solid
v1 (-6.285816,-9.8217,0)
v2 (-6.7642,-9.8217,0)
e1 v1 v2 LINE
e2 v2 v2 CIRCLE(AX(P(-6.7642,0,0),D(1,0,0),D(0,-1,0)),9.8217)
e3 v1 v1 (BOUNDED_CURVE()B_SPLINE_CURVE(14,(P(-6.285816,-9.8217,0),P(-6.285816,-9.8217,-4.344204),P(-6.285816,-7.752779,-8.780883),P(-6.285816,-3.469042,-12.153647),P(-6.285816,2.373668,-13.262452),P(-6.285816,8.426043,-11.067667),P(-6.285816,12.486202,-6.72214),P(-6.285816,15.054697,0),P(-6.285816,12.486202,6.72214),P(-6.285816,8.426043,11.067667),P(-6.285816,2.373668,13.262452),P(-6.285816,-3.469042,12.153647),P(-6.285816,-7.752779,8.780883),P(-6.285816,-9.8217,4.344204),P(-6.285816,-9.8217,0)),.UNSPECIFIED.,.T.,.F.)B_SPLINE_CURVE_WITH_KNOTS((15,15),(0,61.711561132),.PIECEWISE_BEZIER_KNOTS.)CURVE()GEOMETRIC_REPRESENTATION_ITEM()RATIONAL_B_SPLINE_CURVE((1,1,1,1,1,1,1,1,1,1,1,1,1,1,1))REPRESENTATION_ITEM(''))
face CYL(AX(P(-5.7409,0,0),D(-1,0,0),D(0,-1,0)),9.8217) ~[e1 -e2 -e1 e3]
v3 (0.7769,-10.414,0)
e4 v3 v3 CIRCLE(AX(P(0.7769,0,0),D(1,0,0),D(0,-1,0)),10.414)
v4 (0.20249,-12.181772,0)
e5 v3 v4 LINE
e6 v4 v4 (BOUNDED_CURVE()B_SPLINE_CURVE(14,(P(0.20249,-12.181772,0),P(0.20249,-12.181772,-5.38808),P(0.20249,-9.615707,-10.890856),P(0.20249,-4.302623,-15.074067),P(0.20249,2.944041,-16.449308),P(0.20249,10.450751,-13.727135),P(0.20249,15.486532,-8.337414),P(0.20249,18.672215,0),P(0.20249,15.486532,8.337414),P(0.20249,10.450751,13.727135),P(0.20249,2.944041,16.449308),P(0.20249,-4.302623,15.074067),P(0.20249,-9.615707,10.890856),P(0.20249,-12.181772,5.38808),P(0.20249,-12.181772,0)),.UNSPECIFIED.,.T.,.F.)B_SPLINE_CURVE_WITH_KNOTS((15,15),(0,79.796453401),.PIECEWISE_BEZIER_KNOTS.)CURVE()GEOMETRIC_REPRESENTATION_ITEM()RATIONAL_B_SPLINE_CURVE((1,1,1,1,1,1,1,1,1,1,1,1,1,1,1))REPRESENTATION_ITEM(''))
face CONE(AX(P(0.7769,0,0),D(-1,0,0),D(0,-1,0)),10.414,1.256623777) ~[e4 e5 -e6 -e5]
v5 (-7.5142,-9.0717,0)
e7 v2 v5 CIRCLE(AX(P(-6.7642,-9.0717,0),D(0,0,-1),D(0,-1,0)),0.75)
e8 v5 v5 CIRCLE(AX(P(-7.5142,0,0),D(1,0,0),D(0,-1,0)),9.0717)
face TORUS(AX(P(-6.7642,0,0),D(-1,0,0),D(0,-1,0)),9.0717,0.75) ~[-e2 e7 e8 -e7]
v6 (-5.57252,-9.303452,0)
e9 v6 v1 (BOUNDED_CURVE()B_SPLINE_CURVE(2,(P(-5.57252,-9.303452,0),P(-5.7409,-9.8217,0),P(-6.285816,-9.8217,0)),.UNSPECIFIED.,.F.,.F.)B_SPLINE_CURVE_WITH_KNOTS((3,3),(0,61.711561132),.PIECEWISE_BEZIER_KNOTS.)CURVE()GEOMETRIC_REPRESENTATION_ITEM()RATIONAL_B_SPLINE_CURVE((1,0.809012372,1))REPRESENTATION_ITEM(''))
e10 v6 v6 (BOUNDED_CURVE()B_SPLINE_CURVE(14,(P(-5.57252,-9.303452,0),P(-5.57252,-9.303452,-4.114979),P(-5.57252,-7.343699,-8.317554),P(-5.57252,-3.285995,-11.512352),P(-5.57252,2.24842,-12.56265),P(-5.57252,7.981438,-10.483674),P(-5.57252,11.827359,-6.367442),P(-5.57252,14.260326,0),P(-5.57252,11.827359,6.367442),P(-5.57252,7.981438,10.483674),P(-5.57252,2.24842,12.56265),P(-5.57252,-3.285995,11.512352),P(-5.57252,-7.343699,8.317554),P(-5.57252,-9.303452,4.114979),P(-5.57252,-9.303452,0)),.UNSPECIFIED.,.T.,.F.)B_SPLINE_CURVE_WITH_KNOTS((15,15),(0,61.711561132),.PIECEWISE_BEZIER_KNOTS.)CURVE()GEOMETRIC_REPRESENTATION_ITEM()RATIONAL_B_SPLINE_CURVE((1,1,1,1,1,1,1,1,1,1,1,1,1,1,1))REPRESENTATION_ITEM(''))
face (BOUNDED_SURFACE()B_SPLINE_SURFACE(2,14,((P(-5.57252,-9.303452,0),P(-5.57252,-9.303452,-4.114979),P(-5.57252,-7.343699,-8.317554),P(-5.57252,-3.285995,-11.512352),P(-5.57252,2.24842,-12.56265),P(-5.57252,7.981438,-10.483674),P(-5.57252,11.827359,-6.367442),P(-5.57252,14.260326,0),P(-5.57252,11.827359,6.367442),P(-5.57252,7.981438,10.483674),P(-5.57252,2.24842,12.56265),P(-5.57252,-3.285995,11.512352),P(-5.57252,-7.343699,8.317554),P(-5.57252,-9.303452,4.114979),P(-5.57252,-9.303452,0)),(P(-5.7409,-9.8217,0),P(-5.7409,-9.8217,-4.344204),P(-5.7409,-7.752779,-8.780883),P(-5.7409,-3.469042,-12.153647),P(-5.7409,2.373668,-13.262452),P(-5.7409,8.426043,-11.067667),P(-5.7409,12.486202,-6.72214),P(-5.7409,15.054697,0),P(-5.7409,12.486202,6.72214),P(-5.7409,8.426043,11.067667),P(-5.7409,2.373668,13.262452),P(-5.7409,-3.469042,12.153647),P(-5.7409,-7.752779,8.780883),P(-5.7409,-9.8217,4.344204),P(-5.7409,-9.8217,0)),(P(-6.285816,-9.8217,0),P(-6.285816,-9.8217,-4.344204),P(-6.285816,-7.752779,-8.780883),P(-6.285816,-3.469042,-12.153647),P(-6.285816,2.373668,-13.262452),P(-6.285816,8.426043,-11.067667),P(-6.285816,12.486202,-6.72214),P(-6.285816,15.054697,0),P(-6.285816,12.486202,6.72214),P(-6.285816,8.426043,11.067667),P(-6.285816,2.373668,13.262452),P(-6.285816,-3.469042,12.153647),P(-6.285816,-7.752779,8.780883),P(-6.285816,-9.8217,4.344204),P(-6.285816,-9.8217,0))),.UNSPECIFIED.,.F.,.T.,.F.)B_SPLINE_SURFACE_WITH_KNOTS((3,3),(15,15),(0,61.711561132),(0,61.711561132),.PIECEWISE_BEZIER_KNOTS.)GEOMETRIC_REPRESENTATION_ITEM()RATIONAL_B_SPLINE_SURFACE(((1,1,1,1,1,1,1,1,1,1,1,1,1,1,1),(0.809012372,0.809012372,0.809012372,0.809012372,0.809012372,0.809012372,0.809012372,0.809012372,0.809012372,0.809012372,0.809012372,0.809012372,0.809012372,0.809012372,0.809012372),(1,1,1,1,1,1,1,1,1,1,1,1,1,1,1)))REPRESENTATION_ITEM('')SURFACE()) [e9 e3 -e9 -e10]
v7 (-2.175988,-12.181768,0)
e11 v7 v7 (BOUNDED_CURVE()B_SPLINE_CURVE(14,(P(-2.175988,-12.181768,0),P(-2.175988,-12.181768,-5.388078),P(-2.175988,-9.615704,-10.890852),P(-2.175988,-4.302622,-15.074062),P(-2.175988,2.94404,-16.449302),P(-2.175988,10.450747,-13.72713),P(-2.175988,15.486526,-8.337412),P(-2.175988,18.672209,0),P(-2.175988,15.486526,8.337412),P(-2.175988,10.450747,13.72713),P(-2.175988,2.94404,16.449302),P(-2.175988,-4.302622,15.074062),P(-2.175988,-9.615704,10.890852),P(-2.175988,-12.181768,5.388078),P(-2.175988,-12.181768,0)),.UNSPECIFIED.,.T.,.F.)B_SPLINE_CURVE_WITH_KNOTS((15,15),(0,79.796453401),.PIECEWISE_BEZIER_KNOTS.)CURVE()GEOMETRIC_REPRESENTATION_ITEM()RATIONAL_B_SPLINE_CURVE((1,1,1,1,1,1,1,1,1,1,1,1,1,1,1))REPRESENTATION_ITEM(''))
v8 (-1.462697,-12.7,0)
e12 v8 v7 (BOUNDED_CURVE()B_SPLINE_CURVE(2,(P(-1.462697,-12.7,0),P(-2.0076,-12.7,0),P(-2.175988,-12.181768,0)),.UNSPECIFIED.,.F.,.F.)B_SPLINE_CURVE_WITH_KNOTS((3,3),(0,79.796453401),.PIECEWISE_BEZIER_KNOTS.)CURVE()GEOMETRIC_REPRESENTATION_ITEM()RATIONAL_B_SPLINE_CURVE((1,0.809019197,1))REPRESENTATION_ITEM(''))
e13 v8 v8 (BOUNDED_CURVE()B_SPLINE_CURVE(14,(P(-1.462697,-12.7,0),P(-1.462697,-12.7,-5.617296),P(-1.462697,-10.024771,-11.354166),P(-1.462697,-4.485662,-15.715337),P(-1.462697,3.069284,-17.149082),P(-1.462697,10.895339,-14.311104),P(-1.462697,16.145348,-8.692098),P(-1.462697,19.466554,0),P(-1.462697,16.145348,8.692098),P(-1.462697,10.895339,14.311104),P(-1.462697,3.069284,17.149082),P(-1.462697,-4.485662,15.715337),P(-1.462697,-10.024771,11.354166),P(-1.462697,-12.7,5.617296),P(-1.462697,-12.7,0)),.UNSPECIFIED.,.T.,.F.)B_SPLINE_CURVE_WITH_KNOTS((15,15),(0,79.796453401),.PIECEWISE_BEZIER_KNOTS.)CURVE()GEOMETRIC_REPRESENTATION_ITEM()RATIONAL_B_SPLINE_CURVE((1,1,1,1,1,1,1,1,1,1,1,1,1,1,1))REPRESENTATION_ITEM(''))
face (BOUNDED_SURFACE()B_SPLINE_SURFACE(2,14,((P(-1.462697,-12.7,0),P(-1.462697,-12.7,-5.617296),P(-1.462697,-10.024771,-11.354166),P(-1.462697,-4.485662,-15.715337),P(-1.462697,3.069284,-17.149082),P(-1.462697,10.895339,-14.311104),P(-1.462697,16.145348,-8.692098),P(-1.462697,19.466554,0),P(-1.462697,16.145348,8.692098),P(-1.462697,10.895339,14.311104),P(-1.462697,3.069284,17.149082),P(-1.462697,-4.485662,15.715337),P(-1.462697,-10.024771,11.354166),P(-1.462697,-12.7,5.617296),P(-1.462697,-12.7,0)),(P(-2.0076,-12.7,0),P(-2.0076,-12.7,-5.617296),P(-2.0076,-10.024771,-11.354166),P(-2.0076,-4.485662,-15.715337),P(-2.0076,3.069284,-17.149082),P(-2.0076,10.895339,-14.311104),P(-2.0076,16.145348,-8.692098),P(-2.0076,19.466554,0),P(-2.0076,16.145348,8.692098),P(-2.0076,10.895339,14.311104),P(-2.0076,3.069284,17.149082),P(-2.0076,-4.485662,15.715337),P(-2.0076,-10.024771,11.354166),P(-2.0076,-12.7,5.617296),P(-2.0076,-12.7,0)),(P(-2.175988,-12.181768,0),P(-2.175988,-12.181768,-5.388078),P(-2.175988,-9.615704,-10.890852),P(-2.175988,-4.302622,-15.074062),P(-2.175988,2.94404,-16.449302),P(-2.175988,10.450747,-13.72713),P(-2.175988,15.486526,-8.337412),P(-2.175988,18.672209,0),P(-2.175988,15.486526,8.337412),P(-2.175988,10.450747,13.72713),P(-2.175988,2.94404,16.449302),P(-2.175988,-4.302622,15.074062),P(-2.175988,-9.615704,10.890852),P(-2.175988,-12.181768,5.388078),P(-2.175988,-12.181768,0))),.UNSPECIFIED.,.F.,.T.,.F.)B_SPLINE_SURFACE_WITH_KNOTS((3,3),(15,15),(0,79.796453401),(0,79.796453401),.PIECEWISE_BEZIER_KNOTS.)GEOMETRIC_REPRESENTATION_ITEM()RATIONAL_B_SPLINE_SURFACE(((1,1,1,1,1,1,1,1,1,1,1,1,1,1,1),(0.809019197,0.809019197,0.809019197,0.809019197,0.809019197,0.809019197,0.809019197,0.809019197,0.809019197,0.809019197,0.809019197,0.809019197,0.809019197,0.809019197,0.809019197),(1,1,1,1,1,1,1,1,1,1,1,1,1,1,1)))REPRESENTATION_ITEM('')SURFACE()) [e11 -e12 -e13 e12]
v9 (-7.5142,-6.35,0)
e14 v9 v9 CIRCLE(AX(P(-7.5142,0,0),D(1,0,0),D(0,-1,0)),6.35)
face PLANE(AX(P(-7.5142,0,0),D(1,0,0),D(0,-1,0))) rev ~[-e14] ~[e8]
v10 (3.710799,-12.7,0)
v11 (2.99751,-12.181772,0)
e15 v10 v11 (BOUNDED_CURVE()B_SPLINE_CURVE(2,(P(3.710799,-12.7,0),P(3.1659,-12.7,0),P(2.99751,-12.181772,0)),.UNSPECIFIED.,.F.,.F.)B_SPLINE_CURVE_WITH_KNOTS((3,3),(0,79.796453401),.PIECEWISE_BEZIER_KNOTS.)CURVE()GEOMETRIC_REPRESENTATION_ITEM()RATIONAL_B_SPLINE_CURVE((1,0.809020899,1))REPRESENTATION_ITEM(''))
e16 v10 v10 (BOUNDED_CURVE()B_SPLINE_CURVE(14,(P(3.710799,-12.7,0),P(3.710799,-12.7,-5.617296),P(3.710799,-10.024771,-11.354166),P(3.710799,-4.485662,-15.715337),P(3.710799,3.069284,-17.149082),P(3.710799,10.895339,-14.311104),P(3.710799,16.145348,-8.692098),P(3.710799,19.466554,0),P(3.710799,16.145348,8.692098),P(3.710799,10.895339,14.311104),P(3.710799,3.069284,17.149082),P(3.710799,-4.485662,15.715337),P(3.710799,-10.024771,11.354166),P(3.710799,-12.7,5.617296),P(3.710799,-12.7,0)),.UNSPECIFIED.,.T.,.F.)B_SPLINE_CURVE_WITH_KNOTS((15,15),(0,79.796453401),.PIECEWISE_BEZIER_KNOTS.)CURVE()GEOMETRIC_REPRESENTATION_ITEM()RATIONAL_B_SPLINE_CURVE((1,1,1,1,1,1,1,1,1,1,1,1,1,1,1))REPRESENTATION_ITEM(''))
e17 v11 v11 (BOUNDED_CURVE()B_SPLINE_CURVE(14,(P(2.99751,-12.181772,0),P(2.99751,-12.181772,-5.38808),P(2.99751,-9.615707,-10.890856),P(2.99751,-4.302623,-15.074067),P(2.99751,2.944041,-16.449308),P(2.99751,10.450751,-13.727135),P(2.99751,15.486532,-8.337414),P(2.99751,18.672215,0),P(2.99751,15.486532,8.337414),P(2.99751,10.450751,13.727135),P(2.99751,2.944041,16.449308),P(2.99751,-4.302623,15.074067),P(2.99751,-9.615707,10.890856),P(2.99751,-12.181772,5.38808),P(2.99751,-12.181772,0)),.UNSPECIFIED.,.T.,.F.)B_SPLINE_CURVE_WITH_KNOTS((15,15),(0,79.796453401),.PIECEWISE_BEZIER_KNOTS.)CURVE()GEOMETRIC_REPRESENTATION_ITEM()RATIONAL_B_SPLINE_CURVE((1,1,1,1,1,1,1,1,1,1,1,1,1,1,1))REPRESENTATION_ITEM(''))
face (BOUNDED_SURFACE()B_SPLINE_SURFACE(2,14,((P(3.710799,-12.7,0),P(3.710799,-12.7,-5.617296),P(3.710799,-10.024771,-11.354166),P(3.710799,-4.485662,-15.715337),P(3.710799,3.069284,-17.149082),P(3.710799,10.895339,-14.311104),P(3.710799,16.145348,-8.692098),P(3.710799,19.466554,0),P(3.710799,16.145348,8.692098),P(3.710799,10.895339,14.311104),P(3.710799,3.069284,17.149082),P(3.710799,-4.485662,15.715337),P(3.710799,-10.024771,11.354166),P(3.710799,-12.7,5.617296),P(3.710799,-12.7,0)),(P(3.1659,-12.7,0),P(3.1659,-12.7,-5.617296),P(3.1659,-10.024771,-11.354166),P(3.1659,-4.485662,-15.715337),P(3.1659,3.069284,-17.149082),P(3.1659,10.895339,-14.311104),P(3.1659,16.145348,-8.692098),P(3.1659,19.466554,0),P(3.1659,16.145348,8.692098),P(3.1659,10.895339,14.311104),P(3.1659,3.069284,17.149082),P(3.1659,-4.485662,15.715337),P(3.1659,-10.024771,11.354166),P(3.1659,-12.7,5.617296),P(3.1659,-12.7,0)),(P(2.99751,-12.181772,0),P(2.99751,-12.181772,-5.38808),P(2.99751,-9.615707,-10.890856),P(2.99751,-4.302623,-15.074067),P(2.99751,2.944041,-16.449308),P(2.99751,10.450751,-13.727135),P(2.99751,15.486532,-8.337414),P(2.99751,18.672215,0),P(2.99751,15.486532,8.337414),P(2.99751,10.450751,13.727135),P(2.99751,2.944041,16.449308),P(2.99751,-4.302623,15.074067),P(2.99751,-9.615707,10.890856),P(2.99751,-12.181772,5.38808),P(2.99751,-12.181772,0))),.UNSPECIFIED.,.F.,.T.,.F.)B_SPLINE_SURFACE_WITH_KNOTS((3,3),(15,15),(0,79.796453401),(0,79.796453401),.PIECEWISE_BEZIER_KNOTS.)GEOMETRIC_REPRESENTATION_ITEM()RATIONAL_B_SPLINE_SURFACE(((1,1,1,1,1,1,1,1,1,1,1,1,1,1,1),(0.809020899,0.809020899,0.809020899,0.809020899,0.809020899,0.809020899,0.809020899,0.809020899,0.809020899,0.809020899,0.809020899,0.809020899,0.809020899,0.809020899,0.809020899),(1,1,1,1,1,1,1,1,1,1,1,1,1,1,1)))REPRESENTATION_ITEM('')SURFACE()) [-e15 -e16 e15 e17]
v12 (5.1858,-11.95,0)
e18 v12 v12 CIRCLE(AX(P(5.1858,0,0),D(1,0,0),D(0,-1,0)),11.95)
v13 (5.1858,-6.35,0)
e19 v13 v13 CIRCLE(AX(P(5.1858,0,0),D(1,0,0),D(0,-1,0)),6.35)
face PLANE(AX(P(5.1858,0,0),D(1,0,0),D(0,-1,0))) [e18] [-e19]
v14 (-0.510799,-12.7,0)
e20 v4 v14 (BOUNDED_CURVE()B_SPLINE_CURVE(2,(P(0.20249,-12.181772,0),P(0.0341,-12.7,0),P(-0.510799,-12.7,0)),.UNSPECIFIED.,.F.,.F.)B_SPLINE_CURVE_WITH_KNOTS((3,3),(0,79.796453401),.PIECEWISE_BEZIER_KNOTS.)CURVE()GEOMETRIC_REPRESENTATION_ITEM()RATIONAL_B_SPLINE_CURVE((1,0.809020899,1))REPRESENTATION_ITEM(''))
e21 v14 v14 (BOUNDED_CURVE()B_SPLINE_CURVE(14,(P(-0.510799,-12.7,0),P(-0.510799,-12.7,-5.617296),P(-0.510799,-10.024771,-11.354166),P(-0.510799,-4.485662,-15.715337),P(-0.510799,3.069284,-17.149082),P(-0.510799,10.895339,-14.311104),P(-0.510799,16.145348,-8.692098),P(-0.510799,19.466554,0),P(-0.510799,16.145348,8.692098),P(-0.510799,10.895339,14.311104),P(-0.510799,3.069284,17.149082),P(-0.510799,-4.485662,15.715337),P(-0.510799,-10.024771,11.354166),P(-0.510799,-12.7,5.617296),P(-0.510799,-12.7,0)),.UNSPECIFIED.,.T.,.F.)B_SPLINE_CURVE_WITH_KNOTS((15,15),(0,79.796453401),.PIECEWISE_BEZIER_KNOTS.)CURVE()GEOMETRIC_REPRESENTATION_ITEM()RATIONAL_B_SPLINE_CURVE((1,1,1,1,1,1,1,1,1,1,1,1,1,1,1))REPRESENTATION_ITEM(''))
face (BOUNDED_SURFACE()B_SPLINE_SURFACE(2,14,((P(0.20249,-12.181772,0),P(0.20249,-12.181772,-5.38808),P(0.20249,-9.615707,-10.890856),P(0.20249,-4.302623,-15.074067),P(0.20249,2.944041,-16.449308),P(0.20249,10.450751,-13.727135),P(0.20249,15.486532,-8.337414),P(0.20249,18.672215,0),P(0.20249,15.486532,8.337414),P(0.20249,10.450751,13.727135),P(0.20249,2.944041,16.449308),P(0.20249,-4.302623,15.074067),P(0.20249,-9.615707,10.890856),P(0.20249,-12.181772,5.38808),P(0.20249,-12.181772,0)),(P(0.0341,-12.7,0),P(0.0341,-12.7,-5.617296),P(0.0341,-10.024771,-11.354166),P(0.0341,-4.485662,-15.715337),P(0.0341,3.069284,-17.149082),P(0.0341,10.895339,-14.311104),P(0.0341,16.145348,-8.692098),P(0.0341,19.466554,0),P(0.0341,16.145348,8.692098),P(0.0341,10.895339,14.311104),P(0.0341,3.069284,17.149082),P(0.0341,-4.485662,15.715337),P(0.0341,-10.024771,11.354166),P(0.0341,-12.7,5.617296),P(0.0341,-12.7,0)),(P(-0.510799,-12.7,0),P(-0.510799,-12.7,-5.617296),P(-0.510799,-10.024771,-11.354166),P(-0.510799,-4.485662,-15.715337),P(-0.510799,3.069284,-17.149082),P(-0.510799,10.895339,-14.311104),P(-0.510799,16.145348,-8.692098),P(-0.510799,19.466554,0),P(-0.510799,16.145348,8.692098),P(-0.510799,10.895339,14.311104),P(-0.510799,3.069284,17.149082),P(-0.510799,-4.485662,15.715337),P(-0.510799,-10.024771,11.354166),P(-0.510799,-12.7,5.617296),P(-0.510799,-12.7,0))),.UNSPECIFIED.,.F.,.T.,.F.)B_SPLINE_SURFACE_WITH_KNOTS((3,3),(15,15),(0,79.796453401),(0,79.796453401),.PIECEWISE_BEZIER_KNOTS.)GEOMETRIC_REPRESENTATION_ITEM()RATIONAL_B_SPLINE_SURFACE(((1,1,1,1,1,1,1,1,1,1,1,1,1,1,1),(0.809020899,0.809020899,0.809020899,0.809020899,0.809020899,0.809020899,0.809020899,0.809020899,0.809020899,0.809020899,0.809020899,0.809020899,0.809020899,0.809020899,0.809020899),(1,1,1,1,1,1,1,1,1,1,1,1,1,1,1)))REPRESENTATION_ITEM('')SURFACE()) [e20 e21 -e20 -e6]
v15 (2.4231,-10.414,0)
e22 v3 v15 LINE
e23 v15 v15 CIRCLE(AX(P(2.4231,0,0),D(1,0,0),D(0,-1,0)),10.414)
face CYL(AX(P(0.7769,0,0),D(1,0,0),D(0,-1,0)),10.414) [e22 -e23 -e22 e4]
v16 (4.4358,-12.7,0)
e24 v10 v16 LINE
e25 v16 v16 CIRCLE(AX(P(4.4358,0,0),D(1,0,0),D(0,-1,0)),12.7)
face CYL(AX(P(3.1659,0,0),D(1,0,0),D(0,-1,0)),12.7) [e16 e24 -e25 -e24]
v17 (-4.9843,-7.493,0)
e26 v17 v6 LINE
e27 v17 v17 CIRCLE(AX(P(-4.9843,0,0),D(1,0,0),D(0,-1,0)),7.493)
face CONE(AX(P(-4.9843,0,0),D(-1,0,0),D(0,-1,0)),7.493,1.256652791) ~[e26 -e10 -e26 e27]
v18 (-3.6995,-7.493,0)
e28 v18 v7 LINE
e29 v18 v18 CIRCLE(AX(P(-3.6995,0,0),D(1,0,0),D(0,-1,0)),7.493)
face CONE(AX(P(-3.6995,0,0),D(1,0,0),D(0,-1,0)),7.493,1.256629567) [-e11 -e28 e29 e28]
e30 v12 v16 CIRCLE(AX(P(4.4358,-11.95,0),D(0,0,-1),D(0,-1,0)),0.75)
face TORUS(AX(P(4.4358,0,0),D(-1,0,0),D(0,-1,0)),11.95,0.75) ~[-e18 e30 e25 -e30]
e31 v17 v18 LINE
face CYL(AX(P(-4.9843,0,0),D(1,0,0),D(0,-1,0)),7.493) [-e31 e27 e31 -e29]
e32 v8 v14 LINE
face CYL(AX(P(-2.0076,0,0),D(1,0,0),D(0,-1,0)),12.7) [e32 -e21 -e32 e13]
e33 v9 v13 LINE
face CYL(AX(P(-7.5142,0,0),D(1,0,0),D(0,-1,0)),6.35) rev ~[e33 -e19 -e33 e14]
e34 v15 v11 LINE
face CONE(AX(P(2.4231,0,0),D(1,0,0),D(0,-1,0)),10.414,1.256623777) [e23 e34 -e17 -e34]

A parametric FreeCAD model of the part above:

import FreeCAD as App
import Part
import Sketcher
Q = App.Units.Quantity


def edges_at(feature, points):
    """Names of the edges that pass closest to the given points."""
    edges = feature.Shape.Edges
    near = lambda p: min(range(len(edges)), key=lambda i: edges[i].distToShape(Part.Vertex(*p))[0])
    return sorted({f"Edge{near(p) + 1}" for p in points})

doc = App.newDocument("Part")
params = doc.addObject("Spreadsheet::Sheet", "Params")
for row, (alias, value) in enumerate([
    ("sketch1_width", "0.5 in"),
    ("sketch1_height", "0.25 in"),
    ("revolution_angle", "360 deg"),
    ("fillet_radius", "0.75 mm"),
], start=1):
    params.set(f"A{row}", alias)
    params.set(f"B{row}", "=" + value)
    params.setAlias(f"B{row}", alias)

body = doc.addObject("PartDesign::Body", "Body")

# Sketch on XY plane
sketch1 = body.newObject("Sketcher::SketchObject", "Sketch")
sketch1.AttachmentSupport = (doc.getObject("XY_Plane"), [""])
sketch1.MapMode = "FlatFace"
sketch1.addGeometry([
    Part.LineSegment(App.Vector(-5.7409, -9.8217, 0), App.Vector(-4.9843, -7.493, 0)),  # 0
    Part.LineSegment(App.Vector(-4.9843, -7.493, 0), App.Vector(-3.6995, -7.493, 0)),  # 1
    Part.LineSegment(App.Vector(-3.6995, -7.493, 0), App.Vector(-2.0076, -12.7, 0)),  # 2
    Part.LineSegment(App.Vector(-2.0076, -12.7, 0), App.Vector(0.0341, -12.7, 0)),  # 3
    Part.LineSegment(App.Vector(0.0341, -12.7, 0), App.Vector(0.7769, -10.414, 0)),  # 4
    Part.LineSegment(App.Vector(0.7769, -10.414, 0), App.Vector(2.4231, -10.414, 0)),  # 5
    Part.LineSegment(App.Vector(2.4231, -10.414, 0), App.Vector(3.1659, -12.7, 0)),  # 6
    Part.LineSegment(App.Vector(3.1659, -12.7, 0), App.Vector(5.1858, -12.7, 0)),  # 7
    Part.LineSegment(App.Vector(5.1858, -12.7, 0), App.Vector(5.1858, -6.35, 0)),  # 8
    Part.LineSegment(App.Vector(5.1858, -6.35, 0), App.Vector(-7.5142, -6.35, 0)),  # 9
    Part.LineSegment(App.Vector(-7.5142, -6.35, 0), App.Vector(-7.5142, -9.8217, 0)),  # 10
    Part.LineSegment(App.Vector(-7.5142, -9.8217, 0), App.Vector(-5.7409, -9.8217, 0)),  # 11
], False)
sketch1.addConstraint([
    Sketcher.Constraint("Coincident", 0, 2, 1, 1),
    Sketcher.Constraint("Coincident", 1, 2, 2, 1),
    Sketcher.Constraint("Coincident", 2, 2, 3, 1),
    Sketcher.Constraint("Coincident", 3, 2, 4, 1),
    Sketcher.Constraint("Coincident", 4, 2, 5, 1),
    Sketcher.Constraint("Coincident", 5, 2, 6, 1),
    Sketcher.Constraint("Coincident", 6, 2, 7, 1),
    Sketcher.Constraint("Coincident", 7, 2, 8, 1),
    Sketcher.Constraint("Coincident", 8, 2, 9, 1),
    Sketcher.Constraint("Coincident", 9, 2, 10, 1),
    Sketcher.Constraint("Coincident", 10, 2, 11, 1),
    Sketcher.Constraint("Coincident", 11, 2, 0, 1),
    Sketcher.Constraint("Horizontal", 1),
    Sketcher.Constraint("Horizontal", 3),
    Sketcher.Constraint("Horizontal", 5),
    Sketcher.Constraint("Horizontal", 7),
    Sketcher.Constraint("Vertical", 8),
    Sketcher.Constraint("Horizontal", 9),
    Sketcher.Constraint("Vertical", 10),
    Sketcher.Constraint("Horizontal", 11),
    Sketcher.Constraint("Parallel", 0, 4),
    Sketcher.Constraint("Parallel", 2, 6),
    Sketcher.Constraint("Horizontal", 3, 2, 6, 2),
    Sketcher.Constraint("Equal", 4, 6),
    Sketcher.Constraint("DistanceX", 9, 2, 9, 1, Q("0.5 in")),
    Sketcher.Constraint("DistanceY", 8, 1, 8, 2, Q("0.25 in")),
    Sketcher.Constraint("DistanceY", 2, 2, -1, 1, Q("0.5 in")),
    Sketcher.Constraint("DistanceY", 4, 2, -1, 1, Q("0.41 in")),
    Sketcher.Constraint("DistanceX", 5, 1, 5, 2, Q("0.0648 in")),
    Sketcher.Constraint("DistanceY", 0, 2, -1, 1, Q("0.295 in")),
    Sketcher.Constraint("Angle", 0, Q("72.001 deg")),
    Sketcher.Constraint("DistanceX", 3, 1, 3, 2, Q("2.0417 mm")),
    Sketcher.Constraint("DistanceX", 9, 2, 0, 2, Q("0.0996 in")),
    Sketcher.Constraint("DistanceX", 9, 2, -1, 1, Q("7.5142 mm")),
    Sketcher.Constraint("DistanceY", 10, 2, -1, 1, Q("9.8217 mm")),
    Sketcher.Constraint("DistanceX", 11, 2, 1, 2, Q("2.0414 mm")),
])
sketch1.setExpression("Constraints[24]", "Params.sketch1_width")
sketch1.setExpression("Constraints[25]", "Params.sketch1_height")
revolution = body.newObject("PartDesign::Revolution", "Revolution")
revolution.Profile = sketch1
revolution.ReferenceAxis = (sketch1, ["H_Axis"])
revolution.setExpression("Angle", "Params.revolution_angle")
doc.recompute()

fillet = body.newObject("PartDesign::Fillet", "Fillet")
fillet.Base = (revolution, edges_at(revolution, [
    (-7.514, -3.552, -9.157),
    (-5.741, -3.552, -9.157),
    (-2.008, -4.593, -11.841),
    (0.034, -4.593, -11.841),
    (3.166, -4.593, -11.841),
    (5.186, -4.593, -11.841),
]))
fillet.setExpression("Radius", "Params.fillet_radius")

doc.recompute()
